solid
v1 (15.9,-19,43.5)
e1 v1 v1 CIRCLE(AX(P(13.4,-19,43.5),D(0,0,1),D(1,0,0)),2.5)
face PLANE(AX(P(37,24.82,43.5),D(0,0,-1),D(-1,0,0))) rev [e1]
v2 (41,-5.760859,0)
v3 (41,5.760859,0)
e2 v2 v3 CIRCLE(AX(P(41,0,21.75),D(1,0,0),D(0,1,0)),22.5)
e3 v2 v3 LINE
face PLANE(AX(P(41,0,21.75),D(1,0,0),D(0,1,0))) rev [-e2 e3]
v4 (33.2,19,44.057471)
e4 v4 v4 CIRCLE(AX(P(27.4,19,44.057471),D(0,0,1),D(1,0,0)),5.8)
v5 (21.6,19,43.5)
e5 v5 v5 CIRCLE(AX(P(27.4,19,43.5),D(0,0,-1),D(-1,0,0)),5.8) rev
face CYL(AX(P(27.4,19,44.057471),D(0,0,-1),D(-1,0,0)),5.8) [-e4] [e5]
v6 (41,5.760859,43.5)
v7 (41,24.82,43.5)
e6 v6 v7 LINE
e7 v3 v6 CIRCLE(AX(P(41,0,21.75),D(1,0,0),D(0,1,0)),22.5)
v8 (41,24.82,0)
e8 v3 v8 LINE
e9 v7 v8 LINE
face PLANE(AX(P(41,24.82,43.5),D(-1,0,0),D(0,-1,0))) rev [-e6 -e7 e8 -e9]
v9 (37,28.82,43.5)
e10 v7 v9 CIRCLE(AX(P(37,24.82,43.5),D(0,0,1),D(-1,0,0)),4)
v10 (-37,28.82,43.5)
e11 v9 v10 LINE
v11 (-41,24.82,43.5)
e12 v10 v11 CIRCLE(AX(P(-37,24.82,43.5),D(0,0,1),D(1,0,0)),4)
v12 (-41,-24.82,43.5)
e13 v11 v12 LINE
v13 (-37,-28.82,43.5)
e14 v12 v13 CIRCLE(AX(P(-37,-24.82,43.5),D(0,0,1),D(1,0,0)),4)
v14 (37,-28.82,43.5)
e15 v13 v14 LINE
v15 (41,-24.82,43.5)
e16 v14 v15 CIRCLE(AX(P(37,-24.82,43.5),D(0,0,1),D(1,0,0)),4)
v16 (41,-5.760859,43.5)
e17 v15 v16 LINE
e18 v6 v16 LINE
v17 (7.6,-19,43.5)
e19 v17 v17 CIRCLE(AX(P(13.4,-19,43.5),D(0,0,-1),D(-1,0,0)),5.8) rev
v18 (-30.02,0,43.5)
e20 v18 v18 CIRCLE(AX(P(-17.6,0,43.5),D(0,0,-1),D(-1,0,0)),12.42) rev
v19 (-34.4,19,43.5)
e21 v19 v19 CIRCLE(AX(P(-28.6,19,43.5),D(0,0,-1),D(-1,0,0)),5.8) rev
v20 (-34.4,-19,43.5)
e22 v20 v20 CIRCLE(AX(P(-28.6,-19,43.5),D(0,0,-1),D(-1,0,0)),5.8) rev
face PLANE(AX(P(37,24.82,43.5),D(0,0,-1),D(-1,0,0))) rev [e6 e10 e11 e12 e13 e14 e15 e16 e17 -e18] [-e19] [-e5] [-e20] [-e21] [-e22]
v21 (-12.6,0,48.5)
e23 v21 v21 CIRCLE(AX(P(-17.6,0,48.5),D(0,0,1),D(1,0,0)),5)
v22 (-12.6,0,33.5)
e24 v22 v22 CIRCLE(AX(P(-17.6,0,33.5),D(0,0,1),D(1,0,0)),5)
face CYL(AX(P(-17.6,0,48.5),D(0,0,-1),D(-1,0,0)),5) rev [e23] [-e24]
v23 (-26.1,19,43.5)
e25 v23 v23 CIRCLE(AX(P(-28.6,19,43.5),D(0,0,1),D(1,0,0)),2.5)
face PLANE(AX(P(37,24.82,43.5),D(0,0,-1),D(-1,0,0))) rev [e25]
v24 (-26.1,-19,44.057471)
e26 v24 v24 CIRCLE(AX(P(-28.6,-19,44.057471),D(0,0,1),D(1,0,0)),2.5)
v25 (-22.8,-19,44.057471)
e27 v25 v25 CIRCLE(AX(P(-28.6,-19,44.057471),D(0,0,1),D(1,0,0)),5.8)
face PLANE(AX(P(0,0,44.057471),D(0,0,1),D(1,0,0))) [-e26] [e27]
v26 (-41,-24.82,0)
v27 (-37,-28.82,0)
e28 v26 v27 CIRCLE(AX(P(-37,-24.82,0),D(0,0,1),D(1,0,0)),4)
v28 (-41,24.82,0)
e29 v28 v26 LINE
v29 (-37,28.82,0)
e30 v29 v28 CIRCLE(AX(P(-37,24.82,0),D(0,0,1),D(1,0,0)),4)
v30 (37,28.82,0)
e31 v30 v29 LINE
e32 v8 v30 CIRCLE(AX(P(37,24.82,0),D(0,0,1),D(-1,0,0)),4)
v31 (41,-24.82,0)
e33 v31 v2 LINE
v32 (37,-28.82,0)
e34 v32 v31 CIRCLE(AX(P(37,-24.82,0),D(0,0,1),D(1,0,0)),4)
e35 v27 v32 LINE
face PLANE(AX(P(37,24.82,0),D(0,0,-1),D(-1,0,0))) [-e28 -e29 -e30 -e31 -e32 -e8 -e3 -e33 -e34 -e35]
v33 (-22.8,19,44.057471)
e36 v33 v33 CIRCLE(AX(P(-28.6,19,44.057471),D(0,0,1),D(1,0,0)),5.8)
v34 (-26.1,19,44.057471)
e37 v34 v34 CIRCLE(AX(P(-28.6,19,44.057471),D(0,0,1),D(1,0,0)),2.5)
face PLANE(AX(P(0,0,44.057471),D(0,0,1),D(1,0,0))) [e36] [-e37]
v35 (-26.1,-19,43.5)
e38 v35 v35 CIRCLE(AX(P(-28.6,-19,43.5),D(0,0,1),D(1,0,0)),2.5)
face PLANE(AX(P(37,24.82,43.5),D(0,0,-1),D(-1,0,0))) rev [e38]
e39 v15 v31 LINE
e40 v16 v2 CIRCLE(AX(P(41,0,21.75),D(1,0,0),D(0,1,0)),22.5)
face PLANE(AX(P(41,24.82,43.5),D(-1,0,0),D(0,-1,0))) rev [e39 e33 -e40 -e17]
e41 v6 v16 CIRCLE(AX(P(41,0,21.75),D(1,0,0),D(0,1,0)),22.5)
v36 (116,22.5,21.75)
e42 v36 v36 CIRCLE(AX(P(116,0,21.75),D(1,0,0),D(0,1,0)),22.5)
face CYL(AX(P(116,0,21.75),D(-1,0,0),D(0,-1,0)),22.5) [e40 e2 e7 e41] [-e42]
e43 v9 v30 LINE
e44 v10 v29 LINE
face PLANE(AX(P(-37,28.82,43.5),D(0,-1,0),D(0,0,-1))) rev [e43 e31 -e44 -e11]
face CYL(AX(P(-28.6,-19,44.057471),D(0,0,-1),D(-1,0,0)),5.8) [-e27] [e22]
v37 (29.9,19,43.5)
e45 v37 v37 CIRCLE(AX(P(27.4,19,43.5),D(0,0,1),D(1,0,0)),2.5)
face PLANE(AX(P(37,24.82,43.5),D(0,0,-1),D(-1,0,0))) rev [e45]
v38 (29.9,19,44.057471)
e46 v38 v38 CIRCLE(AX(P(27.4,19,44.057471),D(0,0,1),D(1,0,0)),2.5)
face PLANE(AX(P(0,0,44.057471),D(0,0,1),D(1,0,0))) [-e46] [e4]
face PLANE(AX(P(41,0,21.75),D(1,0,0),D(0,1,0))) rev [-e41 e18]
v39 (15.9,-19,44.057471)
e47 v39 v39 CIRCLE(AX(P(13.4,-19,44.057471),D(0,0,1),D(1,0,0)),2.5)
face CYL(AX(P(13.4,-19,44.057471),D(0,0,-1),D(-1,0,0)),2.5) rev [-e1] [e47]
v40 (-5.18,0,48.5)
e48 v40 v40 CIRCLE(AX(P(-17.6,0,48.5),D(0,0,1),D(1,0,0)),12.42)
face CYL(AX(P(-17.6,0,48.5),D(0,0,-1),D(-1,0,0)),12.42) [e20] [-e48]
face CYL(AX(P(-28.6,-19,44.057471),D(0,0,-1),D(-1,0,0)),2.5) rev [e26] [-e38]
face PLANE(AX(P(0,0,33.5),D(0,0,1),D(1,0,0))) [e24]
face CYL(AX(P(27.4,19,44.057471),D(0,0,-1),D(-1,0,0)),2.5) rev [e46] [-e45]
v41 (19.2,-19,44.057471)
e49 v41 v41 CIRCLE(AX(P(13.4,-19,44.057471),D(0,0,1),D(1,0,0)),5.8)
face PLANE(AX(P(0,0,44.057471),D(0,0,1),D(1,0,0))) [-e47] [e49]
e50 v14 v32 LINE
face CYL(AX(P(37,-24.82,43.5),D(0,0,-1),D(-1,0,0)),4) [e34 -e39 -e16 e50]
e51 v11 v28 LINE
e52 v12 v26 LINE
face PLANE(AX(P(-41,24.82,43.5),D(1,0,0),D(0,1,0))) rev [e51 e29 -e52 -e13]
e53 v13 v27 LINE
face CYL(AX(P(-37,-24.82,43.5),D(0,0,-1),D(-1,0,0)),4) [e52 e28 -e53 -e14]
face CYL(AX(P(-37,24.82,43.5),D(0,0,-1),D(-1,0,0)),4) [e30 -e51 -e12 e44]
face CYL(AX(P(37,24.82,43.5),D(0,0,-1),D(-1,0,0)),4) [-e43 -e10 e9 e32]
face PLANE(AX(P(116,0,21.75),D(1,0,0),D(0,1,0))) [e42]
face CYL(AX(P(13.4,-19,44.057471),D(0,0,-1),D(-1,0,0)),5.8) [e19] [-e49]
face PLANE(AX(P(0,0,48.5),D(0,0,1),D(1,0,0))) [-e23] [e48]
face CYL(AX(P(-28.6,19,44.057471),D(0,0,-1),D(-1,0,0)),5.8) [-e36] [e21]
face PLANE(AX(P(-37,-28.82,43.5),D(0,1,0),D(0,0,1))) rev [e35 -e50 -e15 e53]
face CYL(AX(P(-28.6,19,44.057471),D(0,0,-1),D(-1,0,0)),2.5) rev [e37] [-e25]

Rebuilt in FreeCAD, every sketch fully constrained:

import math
import FreeCAD as App
import Part
import Sketcher

V = App.Vector

doc = App.newDocument("Part")
body = doc.addObject("PartDesign::Body", "Body")

sketch1 = doc.addObject("Sketcher::SketchObject", "Sketch")
body.addObject(sketch1)
sketch1.AttachmentSupport = (doc.XY_Plane, [""])
sketch1.MapMode = "FlatFace"
sketch1.addGeometry(Part.LineSegment(V(37, 28.8, 0), V(-37, 28.8, 0)), False)
sketch1.addGeometry(Part.ArcOfCircle(Part.Circle(V(-37, 24.8, 0), V(0, 0, 1), 4), math.radians(90), math.radians(180)), False)
sketch1.addGeometry(Part.LineSegment(V(-41, 24.8, 0), V(-41, -24.8, 0)), False)
sketch1.addGeometry(Part.ArcOfCircle(Part.Circle(V(-37, -24.8, 0), V(0, 0, 1), 4), math.radians(180), math.radians(270)), False)
sketch1.addGeometry(Part.LineSegment(V(-37, -28.8, 0), V(37, -28.8, 0)), False)
sketch1.addGeometry(Part.ArcOfCircle(Part.Circle(V(37, -24.8, 0), V(0, 0, 1), 4), math.radians(-90), math.radians(0)), False)
sketch1.addGeometry(Part.LineSegment(V(41, -24.8, 0), V(41, 24.8, 0)), False)
sketch1.addGeometry(Part.ArcOfCircle(Part.Circle(V(37, 24.8, 0), V(0, 0, 1), 4), math.radians(0), math.radians(90)), False)
sketch1.addConstraint(Sketcher.Constraint("Tangent", 0, 2, 1, 1))
sketch1.addConstraint(Sketcher.Constraint("Tangent", 1, 2, 2, 1))
sketch1.addConstraint(Sketcher.Constraint("Tangent", 2, 2, 3, 1))
sketch1.addConstraint(Sketcher.Constraint("Tangent", 3, 2, 4, 1))
sketch1.addConstraint(Sketcher.Constraint("Tangent", 4, 2, 5, 1))
sketch1.addConstraint(Sketcher.Constraint("Tangent", 5, 2, 6, 1))
sketch1.addConstraint(Sketcher.Constraint("Tangent", 6, 2, 7, 1))
sketch1.addConstraint(Sketcher.Constraint("Tangent", 7, 2, 0, 1))
sketch1.addConstraint(Sketcher.Constraint("Horizontal", 0))
sketch1.addConstraint(Sketcher.Constraint("Vertical", 2))
sketch1.addConstraint(Sketcher.Constraint("Horizontal", 4))
sketch1.addConstraint(Sketcher.Constraint("Vertical", 6))
sketch1.addConstraint(Sketcher.Constraint("Equal", 1, 3))
sketch1.addConstraint(Sketcher.Constraint("Equal", 3, 5))
sketch1.addConstraint(Sketcher.Constraint("Equal", 5, 7))
sketch1.addConstraint(Sketcher.Constraint("Symmetric", 1, 3, 5, 3, -1, 1))
sketch1.addConstraint(Sketcher.Constraint("Radius", 1, 4.0))
sketch1.addConstraint(Sketcher.Constraint("DistanceX", 0, 2, 0, 1, 74.0))
sketch1.addConstraint(Sketcher.Constraint("DistanceY", 2, 2, 2, 1, 49.64))
pad1 = doc.addObject("PartDesign::Pad", "Pad")
body.addObject(pad1)
pad1.Profile = sketch1
pad1.Length = 43.5

sketch2 = doc.addObject("Sketcher::SketchObject", "Sketch001")
body.addObject(sketch2)
sketch2.AttachmentSupport = (doc.XY_Plane, [""])
sketch2.MapMode = "FlatFace"
sketch2.AttachmentOffset = App.Placement(V(0, 0, 43.5), App.Rotation())
sketch2.addGeometry(Part.Circle(V(-28.6, 19, 0), V(0, 0, 1), 5.8), False)
sketch2.addGeometry(Part.Circle(V(-28.6, 19, 0), V(0, 0, 1), 2.5), False)
sketch2.addGeometry(Part.Circle(V(-28.6, -19, 0), V(0, 0, 1), 5.8), False)
sketch2.addGeometry(Part.Circle(V(-28.6, -19, 0), V(0, 0, 1), 2.5), False)
sketch2.addGeometry(Part.Circle(V(13.4, -19, 0), V(0, 0, 1), 5.8), False)
sketch2.addGeometry(Part.Circle(V(13.4, -19, 0), V(0, 0, 1), 2.5), False)
sketch2.addGeometry(Part.Circle(V(27.4, 19, 0), V(0, 0, 1), 5.8), False)
sketch2.addGeometry(Part.Circle(V(27.4, 19, 0), V(0, 0, 1), 2.5), False)
sketch2.addConstraint(Sketcher.Constraint("Coincident", 1, 3, 0, 3))
sketch2.addConstraint(Sketcher.Constraint("Coincident", 3, 3, 2, 3))
sketch2.addConstraint(Sketcher.Constraint("Coincident", 5, 3, 4, 3))
sketch2.addConstraint(Sketcher.Constraint("Coincident", 7, 3, 6, 3))
sketch2.addConstraint(Sketcher.Constraint("Equal", 0, 2))
sketch2.addConstraint(Sketcher.Constraint("Equal", 1, 3))
sketch2.addConstraint(Sketcher.Constraint("Equal", 2, 4))
sketch2.addConstraint(Sketcher.Constraint("Equal", 3, 5))
sketch2.addConstraint(Sketcher.Constraint("Equal", 4, 6))
sketch2.addConstraint(Sketcher.Constraint("Equal", 5, 7))
sketch2.addConstraint(Sketcher.Constraint("Symmetric", 0, 3, 2, 3, -1))
sketch2.addConstraint(Sketcher.Constraint("Horizontal", 3, 3, 4, 3))
sketch2.addConstraint(Sketcher.Constraint("Horizontal", 1, 3, 6, 3))
sketch2.addConstraint(Sketcher.Constraint("Diameter", 1, 5.0))
sketch2.addConstraint(Sketcher.Constraint("Diameter", 0, 11.6))
sketch2.addConstraint(Sketcher.Constraint("DistanceY", -1, 1, 0, 3, 19.0))
sketch2.addConstraint(Sketcher.Constraint("DistanceX", 2, 3, 4, 3, 42.0))
sketch2.addConstraint(Sketcher.Constraint("DistanceX", 4, 3, 6, 3, 14.0))
sketch2.addConstraint(Sketcher.Constraint("DistanceX", 0, 3, -1, 1, 28.6))
pad2 = doc.addObject("PartDesign::Pad", "Pad001")
body.addObject(pad2)
pad2.Profile = sketch2
pad2.Length = 0.557471

sketch3 = doc.addObject("Sketcher::SketchObject", "Sketch002")
body.addObject(sketch3)
sketch3.AttachmentSupport = (doc.XY_Plane, [""])
sketch3.MapMode = "FlatFace"
sketch3.AttachmentOffset = App.Placement(V(0, 0, 43.5), App.Rotation())
sketch3.addGeometry(Part.Circle(V(-18, 0, 0), V(0, 0, 1), 12), False)
sketch3.addGeometry(Part.Circle(V(-18, 0, 0), V(0, 0, 1), 5), False)
sketch3.addConstraint(Sketcher.Constraint("Coincident", 1, 3, 0, 3))
sketch3.addConstraint(Sketcher.Constraint("PointOnObject", 0, 3, -1))
sketch3.addConstraint(Sketcher.Constraint("Diameter", 1, 10.0))
sketch3.addConstraint(Sketcher.Constraint("Diameter", 0, 24.84))
sketch3.addConstraint(Sketcher.Constraint("DistanceX", 0, 3, -1, 1, 17.6))
pad3 = doc.addObject("PartDesign::Pad", "Pad002")
body.addObject(pad3)
pad3.Profile = sketch3
pad3.Length = 5

sketch4 = doc.addObject("Sketcher::SketchObject", "Sketch003")
body.addObject(sketch4)
sketch4.AttachmentSupport = (doc.YZ_Plane, [""])
sketch4.MapMode = "FlatFace"
sketch4.AttachmentOffset = App.Placement(V(0, 0, 41), App.Rotation())
sketch4.addGeometry(Part.Circle(V(0, 22, 0), V(0, 0, 1), 22), False)
sketch4.addConstraint(Sketcher.Constraint("PointOnObject", 0, 3, -2))
sketch4.addConstraint(Sketcher.Constraint("Diameter", 0, 45.0))
sketch4.addConstraint(Sketcher.Constraint("DistanceY", -1, 1, 0, 3, 21.75))
pad4 = doc.addObject("PartDesign::Pad", "Pad003")
body.addObject(pad4)
pad4.Profile = sketch4
pad4.Length = 75

sketch5 = doc.addObject("Sketcher::SketchObject", "Sketch004")
body.addObject(sketch5)
sketch5.AttachmentSupport = (doc.XY_Plane, [""])
sketch5.MapMode = "FlatFace"
sketch5.AttachmentOffset = App.Placement(V(0, 0, 33.5), App.Rotation())
sketch5.addGeometry(Part.Circle(V(-18, 0, 0), V(0, 0, 1), 5), False)
sketch5.addConstraint(Sketcher.Constraint("PointOnObject", 0, 3, -1))
sketch5.addConstraint(Sketcher.Constraint("Diameter", 0, 10.0))
sketch5.addConstraint(Sketcher.Constraint("DistanceX", 0, 3, -1, 1, 17.6))
pocket1 = doc.addObject("PartDesign::Pocket", "Pocket")
body.addObject(pocket1)
pocket1.Profile = sketch5
pocket1.Length = 10
pocket1.Reversed = True

doc.recompute()
